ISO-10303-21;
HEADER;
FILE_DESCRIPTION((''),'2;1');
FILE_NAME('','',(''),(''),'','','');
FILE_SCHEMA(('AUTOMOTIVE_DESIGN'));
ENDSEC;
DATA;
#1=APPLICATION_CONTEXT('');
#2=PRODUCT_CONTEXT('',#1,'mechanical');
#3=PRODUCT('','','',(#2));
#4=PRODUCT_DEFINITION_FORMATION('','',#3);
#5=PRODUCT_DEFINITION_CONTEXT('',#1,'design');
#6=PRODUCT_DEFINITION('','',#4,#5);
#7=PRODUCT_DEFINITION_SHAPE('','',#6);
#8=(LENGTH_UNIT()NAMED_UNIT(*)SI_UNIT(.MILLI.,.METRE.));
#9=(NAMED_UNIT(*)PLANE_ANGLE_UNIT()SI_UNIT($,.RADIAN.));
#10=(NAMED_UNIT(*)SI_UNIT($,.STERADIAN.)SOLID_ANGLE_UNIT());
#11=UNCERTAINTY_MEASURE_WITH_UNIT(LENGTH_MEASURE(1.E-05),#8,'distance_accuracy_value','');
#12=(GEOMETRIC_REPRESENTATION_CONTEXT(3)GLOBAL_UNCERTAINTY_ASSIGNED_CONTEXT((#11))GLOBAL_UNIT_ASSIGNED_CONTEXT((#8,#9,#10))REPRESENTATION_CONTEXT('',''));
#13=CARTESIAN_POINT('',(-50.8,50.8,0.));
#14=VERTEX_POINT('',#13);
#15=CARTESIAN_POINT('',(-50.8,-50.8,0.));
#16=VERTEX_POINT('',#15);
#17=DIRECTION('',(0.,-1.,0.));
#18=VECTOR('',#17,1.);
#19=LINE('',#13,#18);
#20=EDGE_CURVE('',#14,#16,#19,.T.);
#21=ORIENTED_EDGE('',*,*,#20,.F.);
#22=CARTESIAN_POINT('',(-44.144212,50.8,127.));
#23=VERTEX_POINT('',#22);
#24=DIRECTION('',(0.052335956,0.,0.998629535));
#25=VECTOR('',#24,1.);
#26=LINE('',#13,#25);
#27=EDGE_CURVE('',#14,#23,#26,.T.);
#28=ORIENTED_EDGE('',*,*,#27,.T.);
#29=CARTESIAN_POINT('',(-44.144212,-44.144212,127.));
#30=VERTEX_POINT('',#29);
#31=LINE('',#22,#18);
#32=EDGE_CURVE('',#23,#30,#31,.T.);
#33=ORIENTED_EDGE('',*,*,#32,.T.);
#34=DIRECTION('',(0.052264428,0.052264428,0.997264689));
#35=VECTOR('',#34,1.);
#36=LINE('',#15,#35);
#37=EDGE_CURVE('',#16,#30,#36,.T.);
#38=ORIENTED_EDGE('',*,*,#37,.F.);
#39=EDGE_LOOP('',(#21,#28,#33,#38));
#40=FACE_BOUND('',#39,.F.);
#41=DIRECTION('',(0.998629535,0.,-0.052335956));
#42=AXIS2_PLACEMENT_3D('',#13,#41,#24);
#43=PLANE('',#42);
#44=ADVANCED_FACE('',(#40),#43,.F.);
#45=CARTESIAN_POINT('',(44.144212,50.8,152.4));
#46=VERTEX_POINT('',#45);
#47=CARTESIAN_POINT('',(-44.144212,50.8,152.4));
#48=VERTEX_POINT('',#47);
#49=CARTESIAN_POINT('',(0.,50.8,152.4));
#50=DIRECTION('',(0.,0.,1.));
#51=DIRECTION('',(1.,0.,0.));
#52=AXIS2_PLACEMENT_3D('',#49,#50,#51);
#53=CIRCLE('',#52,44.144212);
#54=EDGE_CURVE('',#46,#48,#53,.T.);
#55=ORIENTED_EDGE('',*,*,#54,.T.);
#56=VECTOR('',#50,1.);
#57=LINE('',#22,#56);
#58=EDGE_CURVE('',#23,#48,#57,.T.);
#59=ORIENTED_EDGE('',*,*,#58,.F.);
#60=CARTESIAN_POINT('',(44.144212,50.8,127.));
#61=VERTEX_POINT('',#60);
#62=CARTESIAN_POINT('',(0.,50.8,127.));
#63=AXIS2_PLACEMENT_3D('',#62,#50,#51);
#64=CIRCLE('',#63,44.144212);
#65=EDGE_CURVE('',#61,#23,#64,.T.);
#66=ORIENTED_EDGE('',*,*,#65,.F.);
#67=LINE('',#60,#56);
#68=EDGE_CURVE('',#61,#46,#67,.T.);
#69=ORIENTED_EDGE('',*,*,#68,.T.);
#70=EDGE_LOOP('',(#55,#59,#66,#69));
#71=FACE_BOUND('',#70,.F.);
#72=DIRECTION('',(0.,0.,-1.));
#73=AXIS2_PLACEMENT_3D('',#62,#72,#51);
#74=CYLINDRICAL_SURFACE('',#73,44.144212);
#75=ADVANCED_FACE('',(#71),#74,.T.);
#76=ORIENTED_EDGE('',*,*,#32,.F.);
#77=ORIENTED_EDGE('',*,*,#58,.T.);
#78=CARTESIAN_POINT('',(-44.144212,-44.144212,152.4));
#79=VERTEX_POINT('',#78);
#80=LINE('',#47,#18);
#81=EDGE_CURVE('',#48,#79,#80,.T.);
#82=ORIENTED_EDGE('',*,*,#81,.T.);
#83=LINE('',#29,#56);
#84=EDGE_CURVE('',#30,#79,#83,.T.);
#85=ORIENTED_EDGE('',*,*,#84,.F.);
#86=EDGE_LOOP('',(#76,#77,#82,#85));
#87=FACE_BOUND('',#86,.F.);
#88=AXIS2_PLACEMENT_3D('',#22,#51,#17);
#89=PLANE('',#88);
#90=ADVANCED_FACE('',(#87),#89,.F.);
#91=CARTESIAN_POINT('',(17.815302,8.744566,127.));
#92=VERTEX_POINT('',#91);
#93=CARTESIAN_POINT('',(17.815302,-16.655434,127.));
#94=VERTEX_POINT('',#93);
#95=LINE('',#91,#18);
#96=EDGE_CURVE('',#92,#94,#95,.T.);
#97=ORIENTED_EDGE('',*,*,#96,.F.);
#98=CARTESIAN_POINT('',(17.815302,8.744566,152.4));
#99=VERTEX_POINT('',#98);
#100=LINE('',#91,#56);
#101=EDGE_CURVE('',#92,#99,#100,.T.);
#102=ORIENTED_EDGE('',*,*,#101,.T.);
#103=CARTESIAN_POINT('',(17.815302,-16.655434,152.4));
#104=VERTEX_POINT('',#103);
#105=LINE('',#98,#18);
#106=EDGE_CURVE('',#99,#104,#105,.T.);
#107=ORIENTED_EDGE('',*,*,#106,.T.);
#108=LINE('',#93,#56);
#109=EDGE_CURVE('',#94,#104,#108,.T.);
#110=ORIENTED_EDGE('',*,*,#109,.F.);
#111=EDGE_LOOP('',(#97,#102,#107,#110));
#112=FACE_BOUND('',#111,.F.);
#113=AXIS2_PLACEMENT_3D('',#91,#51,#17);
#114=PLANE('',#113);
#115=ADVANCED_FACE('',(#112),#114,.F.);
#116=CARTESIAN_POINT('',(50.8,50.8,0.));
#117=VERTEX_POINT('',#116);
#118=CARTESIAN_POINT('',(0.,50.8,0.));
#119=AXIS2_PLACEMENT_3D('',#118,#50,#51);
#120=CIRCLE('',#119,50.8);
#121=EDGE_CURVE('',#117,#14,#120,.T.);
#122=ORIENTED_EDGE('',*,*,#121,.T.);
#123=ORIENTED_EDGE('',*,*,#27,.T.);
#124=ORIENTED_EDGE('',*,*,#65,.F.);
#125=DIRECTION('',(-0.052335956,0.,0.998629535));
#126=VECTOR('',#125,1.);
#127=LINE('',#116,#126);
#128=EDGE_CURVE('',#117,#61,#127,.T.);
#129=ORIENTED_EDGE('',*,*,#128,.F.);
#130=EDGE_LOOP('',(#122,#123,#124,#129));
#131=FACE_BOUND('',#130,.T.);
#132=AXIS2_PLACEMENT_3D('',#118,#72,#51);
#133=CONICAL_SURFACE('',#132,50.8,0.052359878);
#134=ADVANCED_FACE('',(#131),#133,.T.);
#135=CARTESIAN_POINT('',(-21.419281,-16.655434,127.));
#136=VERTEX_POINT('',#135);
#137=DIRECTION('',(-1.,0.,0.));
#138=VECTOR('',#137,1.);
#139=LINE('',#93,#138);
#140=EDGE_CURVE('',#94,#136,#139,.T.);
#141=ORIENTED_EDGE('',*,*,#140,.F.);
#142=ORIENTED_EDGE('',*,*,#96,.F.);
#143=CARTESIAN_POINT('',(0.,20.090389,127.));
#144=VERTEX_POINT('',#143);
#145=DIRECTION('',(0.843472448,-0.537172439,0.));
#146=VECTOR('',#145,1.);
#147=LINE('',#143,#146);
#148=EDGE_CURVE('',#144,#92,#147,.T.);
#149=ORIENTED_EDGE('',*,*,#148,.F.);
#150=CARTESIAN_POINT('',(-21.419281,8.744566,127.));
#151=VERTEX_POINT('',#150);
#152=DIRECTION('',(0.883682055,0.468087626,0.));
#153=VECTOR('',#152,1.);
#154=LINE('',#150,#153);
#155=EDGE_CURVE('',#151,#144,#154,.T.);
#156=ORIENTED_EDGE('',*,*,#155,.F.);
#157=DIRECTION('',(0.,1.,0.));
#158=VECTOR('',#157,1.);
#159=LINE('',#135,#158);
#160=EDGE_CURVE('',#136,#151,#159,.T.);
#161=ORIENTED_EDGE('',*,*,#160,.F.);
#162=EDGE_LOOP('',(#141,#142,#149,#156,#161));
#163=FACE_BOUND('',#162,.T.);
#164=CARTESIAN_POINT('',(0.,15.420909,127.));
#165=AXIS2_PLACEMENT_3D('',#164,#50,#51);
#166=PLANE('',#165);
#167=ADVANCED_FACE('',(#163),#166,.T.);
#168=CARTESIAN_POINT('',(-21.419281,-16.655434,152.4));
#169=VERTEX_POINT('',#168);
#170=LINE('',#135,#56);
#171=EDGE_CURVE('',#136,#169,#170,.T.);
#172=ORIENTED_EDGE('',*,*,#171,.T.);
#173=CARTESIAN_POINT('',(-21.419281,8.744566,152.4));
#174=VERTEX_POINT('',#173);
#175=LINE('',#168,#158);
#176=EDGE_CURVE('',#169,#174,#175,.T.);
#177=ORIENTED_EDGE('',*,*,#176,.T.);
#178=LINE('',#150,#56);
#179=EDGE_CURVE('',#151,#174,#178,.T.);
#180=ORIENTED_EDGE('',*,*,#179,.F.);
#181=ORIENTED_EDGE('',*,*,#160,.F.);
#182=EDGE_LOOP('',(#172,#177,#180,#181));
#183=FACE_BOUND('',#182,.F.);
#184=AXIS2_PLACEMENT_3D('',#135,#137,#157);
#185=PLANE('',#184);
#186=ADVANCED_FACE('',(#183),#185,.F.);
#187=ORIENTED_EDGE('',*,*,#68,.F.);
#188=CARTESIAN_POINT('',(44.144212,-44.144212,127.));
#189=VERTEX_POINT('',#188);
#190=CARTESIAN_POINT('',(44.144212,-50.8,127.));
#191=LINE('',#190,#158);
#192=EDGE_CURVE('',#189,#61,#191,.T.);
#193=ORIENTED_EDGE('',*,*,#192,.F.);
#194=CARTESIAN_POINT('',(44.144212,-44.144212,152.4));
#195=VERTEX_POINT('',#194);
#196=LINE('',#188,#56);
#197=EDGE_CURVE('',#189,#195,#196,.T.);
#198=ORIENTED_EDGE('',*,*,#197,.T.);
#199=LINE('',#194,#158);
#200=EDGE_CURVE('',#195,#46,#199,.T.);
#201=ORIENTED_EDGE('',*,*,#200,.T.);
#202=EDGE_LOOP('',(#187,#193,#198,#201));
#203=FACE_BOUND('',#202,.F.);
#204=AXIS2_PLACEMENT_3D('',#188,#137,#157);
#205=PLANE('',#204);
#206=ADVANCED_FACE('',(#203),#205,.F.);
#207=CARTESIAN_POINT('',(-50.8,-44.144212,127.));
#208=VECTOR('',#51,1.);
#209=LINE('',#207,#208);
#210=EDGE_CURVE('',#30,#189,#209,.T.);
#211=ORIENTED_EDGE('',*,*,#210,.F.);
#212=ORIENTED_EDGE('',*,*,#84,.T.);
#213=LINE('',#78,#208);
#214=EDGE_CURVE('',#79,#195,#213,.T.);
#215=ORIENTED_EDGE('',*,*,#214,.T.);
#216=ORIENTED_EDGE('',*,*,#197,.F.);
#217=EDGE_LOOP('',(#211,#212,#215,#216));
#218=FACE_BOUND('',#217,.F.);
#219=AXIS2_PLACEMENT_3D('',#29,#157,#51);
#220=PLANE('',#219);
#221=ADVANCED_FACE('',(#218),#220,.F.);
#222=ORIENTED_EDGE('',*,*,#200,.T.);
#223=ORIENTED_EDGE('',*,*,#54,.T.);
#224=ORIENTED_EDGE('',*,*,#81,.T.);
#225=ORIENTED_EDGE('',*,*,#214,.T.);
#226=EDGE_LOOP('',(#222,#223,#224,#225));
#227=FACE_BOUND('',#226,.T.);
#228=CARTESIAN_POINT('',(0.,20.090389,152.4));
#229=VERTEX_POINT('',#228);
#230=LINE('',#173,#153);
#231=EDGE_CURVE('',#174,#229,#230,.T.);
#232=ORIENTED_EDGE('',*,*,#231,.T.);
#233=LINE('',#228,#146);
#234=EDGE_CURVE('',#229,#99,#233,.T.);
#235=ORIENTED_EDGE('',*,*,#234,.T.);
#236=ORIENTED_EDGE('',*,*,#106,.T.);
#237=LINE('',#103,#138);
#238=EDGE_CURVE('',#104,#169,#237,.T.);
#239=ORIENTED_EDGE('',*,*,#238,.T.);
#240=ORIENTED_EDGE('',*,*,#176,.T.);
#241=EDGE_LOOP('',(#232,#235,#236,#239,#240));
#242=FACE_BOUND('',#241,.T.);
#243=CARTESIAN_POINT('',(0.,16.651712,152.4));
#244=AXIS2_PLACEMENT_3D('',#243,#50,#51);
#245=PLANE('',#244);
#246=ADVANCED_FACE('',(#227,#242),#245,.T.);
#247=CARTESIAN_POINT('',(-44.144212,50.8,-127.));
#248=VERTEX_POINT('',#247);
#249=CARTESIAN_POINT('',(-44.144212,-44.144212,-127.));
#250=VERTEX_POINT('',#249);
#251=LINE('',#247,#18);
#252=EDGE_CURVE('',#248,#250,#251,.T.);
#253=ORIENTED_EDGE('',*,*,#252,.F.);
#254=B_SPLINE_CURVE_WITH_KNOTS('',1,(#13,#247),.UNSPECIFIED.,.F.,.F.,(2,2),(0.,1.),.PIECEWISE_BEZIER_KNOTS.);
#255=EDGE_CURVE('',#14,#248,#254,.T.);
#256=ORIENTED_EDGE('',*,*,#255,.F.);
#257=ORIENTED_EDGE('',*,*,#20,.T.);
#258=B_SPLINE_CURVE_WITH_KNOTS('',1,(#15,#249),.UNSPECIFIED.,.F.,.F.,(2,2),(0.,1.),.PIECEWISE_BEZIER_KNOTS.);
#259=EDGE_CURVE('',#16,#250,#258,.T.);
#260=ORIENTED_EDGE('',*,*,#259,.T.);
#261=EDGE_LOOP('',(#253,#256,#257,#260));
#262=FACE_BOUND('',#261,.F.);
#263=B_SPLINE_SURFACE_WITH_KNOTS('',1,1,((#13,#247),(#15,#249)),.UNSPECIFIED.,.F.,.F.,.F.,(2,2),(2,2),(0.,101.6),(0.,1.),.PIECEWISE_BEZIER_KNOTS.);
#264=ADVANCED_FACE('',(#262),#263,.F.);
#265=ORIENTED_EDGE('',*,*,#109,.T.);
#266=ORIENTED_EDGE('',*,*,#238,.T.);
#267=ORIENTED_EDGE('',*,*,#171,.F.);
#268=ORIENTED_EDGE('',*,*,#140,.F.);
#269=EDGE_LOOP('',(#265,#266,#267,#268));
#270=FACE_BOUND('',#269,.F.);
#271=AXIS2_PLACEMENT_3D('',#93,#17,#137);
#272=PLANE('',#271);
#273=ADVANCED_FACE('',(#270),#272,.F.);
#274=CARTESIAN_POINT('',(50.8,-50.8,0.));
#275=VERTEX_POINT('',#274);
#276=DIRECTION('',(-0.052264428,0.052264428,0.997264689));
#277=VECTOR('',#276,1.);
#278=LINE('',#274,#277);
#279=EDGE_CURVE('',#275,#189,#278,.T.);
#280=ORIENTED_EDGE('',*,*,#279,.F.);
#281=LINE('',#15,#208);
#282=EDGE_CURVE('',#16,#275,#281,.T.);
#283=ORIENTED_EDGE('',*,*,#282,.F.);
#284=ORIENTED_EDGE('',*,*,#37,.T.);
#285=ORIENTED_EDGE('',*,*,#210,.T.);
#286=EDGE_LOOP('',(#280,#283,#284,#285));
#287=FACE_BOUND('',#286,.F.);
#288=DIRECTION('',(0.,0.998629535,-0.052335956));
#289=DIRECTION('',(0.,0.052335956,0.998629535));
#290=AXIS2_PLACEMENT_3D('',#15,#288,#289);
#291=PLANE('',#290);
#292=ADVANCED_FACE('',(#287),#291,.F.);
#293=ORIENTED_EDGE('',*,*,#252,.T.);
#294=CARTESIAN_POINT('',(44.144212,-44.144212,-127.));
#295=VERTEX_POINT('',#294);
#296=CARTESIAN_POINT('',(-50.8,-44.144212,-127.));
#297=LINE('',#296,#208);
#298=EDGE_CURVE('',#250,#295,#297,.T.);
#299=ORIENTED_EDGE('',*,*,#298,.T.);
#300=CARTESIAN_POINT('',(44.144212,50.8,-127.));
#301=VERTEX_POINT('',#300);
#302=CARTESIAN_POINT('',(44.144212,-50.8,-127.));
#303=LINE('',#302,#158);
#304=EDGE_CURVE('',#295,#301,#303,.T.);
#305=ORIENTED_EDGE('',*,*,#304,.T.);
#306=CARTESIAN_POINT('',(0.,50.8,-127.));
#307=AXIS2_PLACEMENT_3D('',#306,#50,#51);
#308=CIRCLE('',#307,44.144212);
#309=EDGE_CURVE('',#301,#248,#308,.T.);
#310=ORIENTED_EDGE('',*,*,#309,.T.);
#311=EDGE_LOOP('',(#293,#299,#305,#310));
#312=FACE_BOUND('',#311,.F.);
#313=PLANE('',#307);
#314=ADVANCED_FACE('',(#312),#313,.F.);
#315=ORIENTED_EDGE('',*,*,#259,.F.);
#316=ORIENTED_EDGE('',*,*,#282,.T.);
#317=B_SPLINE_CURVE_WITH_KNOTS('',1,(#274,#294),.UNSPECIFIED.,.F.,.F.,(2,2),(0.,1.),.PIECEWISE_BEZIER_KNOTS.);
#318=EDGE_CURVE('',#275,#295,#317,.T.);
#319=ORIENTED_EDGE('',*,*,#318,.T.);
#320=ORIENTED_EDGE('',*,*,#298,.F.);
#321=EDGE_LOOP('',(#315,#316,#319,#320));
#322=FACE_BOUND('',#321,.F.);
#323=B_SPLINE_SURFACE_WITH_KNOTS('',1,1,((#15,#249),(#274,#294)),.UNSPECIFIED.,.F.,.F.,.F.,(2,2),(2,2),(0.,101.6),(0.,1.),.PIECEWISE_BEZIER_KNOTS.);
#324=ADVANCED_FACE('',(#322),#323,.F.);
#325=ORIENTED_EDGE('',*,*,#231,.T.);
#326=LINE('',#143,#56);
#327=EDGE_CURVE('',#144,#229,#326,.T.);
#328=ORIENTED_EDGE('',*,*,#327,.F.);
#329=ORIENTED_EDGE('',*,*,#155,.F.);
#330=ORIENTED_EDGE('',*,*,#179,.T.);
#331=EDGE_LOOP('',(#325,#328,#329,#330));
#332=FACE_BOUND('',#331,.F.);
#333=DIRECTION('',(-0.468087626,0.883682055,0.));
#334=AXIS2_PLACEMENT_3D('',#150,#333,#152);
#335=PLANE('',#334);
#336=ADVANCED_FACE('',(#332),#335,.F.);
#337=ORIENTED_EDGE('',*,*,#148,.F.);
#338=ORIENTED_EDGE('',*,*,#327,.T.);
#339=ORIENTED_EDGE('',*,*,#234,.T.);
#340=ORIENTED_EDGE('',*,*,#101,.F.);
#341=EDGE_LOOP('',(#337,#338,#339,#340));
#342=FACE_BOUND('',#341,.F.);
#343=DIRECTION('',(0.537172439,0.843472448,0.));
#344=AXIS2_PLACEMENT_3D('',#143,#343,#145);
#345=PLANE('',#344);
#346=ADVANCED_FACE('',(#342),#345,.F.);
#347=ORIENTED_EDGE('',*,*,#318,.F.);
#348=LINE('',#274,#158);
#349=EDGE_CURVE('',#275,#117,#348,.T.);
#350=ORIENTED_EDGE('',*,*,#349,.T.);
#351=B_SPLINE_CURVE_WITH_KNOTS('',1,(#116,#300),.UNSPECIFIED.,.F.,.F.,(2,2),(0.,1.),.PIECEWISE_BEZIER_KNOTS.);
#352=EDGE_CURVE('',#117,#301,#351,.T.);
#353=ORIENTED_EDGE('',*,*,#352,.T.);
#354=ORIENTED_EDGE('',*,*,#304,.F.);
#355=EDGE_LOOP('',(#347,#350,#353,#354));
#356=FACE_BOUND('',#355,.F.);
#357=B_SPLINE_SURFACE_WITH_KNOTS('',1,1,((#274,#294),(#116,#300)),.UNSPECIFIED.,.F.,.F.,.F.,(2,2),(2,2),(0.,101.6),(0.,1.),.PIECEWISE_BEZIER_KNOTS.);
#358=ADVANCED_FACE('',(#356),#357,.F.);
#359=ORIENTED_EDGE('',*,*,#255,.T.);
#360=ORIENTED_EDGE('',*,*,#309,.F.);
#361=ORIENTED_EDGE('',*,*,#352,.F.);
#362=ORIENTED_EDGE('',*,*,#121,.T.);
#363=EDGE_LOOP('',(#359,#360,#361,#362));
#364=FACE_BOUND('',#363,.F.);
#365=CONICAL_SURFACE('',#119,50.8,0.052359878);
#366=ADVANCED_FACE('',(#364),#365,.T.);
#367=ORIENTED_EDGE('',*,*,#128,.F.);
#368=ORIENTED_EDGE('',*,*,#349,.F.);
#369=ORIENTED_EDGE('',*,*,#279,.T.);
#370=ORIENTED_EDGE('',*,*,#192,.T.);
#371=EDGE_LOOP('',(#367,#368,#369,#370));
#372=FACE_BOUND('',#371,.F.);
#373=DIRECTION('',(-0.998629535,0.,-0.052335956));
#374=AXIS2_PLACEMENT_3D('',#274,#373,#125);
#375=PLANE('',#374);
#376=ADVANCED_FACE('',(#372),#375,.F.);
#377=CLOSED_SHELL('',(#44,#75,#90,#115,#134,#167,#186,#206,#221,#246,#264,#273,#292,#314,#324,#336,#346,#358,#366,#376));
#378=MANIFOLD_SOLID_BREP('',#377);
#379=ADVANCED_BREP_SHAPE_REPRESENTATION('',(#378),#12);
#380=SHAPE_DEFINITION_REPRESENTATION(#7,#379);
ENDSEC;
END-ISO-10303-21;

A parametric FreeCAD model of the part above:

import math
import FreeCAD as App
import Part
import Sketcher
from FreeCAD import Vector
Q = App.Units.Quantity

doc = App.newDocument("Part")
params = doc.addObject("Spreadsheet::Sheet", "Params")
for row, (alias, value) in enumerate([
    ("sketch1_radius", "2 in"),
    ("pad1_length", "10 in"),
    ("pad1_taper", "-3 deg"),
    ("sketch2_height", "1 in"),
    ("pad2_length", "1 in"),
], start=1):
    params.set(f"A{row}", alias)
    params.set(f"B{row}", "=" + value)
    params.setAlias(f"B{row}", alias)

body = doc.addObject("PartDesign::Body", "Body")

sketch1 = body.newObject("Sketcher::SketchObject", "Sketch")
sketch1.AttachmentSupport = (doc.getObject("XY_Plane"), [""])
sketch1.MapMode = "FlatFace"
sketch1.addGeometry([
    Part.LineSegment(Vector(-51, -51, 0), Vector(51, -51, 0)),
    Part.LineSegment(Vector(51, -51, 0), Vector(51, 51, 0)),
    Part.ArcOfCircle(Part.Circle(Vector(0, 51, 0), Vector(0, 0, 1), 51), math.radians(0), math.radians(180)),
    Part.LineSegment(Vector(-51, 51, 0), Vector(-51, -51, 0)),
], False)
sketch1.addConstraint([
    Sketcher.Constraint("Coincident", 0, 2, 1, 1),
    Sketcher.Constraint("Tangent", 1, 2, 2, 1),
    Sketcher.Constraint("Tangent", 2, 2, 3, 1),
    Sketcher.Constraint("Coincident", 3, 2, 0, 1),
    Sketcher.Constraint("Horizontal", 0),
    Sketcher.Constraint("Vertical", 1),
    Sketcher.Constraint("Vertical", 3),
    Sketcher.Constraint("Symmetric", 0, 2, 2, 2, -1, 1),
    Sketcher.Constraint("Equal", 0, 1),
    Sketcher.Constraint("Radius", 2, Q("2 in")),
])
sketch1.setExpression("Constraints[9]", "Params.sketch1_radius")
pad1 = body.newObject("PartDesign::Pad", "Pad")
pad1.Profile = sketch1
pad1.setExpression("Length", "Params.pad1_length")
pad1.Midplane = True
pad1.setExpression("TaperAngle", "Params.pad1_taper")

sketch2 = body.newObject("Sketcher::SketchObject", "Sketch001")
sketch2.AttachmentSupport = (doc.getObject("XY_Plane"), [""])
sketch2.MapMode = "FlatFace"
sketch2.AttachmentOffset = App.Placement(Vector(0, 0, 5 * 25.4), App.Rotation())
sketch2.addGeometry([
    Part.ArcOfCircle(Part.Circle(Vector(0, 51, 0), Vector(0, 0, 1), 44), math.radians(0), math.radians(180)),
    Part.LineSegment(Vector(-44, 51, 0), Vector(-44, -44, 0)),
    Part.LineSegment(Vector(-44, -44, 0), Vector(44, -44, 0)),
    Part.LineSegment(Vector(44, -44, 0), Vector(44, 51, 0)),
    Part.LineSegment(Vector(18, -17, 0), Vector(-21, -17, 0)),
    Part.LineSegment(Vector(-21, -17, 0), Vector(-21, 9, 0)),
    Part.LineSegment(Vector(-21, 9, 0), Vector(0, 20, 0)),
    Part.LineSegment(Vector(0, 20, 0), Vector(18, 9, 0)),
    Part.LineSegment(Vector(18, 9, 0), Vector(18, -17, 0)),
], False)
sketch2.addConstraint([
    Sketcher.Constraint("Tangent", 0, 2, 1, 1),
    Sketcher.Constraint("Coincident", 1, 2, 2, 1),
    Sketcher.Constraint("Coincident", 2, 2, 3, 1),
    Sketcher.Constraint("Tangent", 3, 2, 0, 1),
    Sketcher.Constraint("Coincident", 4, 2, 5, 1),
    Sketcher.Constraint("Coincident", 5, 2, 6, 1),
    Sketcher.Constraint("Coincident", 6, 2, 7, 1),
    Sketcher.Constraint("Coincident", 7, 2, 8, 1),
    Sketcher.Constraint("Coincident", 8, 2, 4, 1),
    Sketcher.Constraint("Vertical", 1),
    Sketcher.Constraint("Horizontal", 2),
    Sketcher.Constraint("Vertical", 3),
    Sketcher.Constraint("Horizontal", 4),
    Sketcher.Constraint("Vertical", 5),
    Sketcher.Constraint("Vertical", 8),
    Sketcher.Constraint("PointOnObject", 0, 3, -2),
    Sketcher.Constraint("PointOnObject", 6, 2, -2),
    Sketcher.Constraint("Horizontal", 5, 2, 7, 2),
    Sketcher.Constraint("DistanceY", 5, 1, 5, 2, Q("1 in")),
    Sketcher.Constraint("DistanceY", -1, 1, 0, 3, Q("2 in")),
    Sketcher.Constraint("Radius", 0, 44.144212),
    Sketcher.Constraint("DistanceX", -1, 1, 7, 2, 17.815302),
    Sketcher.Constraint("Distance", 7, 21.12138),
    Sketcher.Constraint("DistanceX", 4, 2, 4, 1, 39.234583),
    Sketcher.Constraint("DistanceY", 1, 2, 1, 1, 94.944212),
    Sketcher.Constraint("DistanceY", -1, 1, 6, 2, 20.090389),
])
sketch2.setExpression("Constraints[18]", "Params.sketch2_height")
pad2 = body.newObject("PartDesign::Pad", "Pad001")
pad2.Profile = sketch2
pad2.setExpression("Length", "Params.pad2_length")

doc.recompute()
